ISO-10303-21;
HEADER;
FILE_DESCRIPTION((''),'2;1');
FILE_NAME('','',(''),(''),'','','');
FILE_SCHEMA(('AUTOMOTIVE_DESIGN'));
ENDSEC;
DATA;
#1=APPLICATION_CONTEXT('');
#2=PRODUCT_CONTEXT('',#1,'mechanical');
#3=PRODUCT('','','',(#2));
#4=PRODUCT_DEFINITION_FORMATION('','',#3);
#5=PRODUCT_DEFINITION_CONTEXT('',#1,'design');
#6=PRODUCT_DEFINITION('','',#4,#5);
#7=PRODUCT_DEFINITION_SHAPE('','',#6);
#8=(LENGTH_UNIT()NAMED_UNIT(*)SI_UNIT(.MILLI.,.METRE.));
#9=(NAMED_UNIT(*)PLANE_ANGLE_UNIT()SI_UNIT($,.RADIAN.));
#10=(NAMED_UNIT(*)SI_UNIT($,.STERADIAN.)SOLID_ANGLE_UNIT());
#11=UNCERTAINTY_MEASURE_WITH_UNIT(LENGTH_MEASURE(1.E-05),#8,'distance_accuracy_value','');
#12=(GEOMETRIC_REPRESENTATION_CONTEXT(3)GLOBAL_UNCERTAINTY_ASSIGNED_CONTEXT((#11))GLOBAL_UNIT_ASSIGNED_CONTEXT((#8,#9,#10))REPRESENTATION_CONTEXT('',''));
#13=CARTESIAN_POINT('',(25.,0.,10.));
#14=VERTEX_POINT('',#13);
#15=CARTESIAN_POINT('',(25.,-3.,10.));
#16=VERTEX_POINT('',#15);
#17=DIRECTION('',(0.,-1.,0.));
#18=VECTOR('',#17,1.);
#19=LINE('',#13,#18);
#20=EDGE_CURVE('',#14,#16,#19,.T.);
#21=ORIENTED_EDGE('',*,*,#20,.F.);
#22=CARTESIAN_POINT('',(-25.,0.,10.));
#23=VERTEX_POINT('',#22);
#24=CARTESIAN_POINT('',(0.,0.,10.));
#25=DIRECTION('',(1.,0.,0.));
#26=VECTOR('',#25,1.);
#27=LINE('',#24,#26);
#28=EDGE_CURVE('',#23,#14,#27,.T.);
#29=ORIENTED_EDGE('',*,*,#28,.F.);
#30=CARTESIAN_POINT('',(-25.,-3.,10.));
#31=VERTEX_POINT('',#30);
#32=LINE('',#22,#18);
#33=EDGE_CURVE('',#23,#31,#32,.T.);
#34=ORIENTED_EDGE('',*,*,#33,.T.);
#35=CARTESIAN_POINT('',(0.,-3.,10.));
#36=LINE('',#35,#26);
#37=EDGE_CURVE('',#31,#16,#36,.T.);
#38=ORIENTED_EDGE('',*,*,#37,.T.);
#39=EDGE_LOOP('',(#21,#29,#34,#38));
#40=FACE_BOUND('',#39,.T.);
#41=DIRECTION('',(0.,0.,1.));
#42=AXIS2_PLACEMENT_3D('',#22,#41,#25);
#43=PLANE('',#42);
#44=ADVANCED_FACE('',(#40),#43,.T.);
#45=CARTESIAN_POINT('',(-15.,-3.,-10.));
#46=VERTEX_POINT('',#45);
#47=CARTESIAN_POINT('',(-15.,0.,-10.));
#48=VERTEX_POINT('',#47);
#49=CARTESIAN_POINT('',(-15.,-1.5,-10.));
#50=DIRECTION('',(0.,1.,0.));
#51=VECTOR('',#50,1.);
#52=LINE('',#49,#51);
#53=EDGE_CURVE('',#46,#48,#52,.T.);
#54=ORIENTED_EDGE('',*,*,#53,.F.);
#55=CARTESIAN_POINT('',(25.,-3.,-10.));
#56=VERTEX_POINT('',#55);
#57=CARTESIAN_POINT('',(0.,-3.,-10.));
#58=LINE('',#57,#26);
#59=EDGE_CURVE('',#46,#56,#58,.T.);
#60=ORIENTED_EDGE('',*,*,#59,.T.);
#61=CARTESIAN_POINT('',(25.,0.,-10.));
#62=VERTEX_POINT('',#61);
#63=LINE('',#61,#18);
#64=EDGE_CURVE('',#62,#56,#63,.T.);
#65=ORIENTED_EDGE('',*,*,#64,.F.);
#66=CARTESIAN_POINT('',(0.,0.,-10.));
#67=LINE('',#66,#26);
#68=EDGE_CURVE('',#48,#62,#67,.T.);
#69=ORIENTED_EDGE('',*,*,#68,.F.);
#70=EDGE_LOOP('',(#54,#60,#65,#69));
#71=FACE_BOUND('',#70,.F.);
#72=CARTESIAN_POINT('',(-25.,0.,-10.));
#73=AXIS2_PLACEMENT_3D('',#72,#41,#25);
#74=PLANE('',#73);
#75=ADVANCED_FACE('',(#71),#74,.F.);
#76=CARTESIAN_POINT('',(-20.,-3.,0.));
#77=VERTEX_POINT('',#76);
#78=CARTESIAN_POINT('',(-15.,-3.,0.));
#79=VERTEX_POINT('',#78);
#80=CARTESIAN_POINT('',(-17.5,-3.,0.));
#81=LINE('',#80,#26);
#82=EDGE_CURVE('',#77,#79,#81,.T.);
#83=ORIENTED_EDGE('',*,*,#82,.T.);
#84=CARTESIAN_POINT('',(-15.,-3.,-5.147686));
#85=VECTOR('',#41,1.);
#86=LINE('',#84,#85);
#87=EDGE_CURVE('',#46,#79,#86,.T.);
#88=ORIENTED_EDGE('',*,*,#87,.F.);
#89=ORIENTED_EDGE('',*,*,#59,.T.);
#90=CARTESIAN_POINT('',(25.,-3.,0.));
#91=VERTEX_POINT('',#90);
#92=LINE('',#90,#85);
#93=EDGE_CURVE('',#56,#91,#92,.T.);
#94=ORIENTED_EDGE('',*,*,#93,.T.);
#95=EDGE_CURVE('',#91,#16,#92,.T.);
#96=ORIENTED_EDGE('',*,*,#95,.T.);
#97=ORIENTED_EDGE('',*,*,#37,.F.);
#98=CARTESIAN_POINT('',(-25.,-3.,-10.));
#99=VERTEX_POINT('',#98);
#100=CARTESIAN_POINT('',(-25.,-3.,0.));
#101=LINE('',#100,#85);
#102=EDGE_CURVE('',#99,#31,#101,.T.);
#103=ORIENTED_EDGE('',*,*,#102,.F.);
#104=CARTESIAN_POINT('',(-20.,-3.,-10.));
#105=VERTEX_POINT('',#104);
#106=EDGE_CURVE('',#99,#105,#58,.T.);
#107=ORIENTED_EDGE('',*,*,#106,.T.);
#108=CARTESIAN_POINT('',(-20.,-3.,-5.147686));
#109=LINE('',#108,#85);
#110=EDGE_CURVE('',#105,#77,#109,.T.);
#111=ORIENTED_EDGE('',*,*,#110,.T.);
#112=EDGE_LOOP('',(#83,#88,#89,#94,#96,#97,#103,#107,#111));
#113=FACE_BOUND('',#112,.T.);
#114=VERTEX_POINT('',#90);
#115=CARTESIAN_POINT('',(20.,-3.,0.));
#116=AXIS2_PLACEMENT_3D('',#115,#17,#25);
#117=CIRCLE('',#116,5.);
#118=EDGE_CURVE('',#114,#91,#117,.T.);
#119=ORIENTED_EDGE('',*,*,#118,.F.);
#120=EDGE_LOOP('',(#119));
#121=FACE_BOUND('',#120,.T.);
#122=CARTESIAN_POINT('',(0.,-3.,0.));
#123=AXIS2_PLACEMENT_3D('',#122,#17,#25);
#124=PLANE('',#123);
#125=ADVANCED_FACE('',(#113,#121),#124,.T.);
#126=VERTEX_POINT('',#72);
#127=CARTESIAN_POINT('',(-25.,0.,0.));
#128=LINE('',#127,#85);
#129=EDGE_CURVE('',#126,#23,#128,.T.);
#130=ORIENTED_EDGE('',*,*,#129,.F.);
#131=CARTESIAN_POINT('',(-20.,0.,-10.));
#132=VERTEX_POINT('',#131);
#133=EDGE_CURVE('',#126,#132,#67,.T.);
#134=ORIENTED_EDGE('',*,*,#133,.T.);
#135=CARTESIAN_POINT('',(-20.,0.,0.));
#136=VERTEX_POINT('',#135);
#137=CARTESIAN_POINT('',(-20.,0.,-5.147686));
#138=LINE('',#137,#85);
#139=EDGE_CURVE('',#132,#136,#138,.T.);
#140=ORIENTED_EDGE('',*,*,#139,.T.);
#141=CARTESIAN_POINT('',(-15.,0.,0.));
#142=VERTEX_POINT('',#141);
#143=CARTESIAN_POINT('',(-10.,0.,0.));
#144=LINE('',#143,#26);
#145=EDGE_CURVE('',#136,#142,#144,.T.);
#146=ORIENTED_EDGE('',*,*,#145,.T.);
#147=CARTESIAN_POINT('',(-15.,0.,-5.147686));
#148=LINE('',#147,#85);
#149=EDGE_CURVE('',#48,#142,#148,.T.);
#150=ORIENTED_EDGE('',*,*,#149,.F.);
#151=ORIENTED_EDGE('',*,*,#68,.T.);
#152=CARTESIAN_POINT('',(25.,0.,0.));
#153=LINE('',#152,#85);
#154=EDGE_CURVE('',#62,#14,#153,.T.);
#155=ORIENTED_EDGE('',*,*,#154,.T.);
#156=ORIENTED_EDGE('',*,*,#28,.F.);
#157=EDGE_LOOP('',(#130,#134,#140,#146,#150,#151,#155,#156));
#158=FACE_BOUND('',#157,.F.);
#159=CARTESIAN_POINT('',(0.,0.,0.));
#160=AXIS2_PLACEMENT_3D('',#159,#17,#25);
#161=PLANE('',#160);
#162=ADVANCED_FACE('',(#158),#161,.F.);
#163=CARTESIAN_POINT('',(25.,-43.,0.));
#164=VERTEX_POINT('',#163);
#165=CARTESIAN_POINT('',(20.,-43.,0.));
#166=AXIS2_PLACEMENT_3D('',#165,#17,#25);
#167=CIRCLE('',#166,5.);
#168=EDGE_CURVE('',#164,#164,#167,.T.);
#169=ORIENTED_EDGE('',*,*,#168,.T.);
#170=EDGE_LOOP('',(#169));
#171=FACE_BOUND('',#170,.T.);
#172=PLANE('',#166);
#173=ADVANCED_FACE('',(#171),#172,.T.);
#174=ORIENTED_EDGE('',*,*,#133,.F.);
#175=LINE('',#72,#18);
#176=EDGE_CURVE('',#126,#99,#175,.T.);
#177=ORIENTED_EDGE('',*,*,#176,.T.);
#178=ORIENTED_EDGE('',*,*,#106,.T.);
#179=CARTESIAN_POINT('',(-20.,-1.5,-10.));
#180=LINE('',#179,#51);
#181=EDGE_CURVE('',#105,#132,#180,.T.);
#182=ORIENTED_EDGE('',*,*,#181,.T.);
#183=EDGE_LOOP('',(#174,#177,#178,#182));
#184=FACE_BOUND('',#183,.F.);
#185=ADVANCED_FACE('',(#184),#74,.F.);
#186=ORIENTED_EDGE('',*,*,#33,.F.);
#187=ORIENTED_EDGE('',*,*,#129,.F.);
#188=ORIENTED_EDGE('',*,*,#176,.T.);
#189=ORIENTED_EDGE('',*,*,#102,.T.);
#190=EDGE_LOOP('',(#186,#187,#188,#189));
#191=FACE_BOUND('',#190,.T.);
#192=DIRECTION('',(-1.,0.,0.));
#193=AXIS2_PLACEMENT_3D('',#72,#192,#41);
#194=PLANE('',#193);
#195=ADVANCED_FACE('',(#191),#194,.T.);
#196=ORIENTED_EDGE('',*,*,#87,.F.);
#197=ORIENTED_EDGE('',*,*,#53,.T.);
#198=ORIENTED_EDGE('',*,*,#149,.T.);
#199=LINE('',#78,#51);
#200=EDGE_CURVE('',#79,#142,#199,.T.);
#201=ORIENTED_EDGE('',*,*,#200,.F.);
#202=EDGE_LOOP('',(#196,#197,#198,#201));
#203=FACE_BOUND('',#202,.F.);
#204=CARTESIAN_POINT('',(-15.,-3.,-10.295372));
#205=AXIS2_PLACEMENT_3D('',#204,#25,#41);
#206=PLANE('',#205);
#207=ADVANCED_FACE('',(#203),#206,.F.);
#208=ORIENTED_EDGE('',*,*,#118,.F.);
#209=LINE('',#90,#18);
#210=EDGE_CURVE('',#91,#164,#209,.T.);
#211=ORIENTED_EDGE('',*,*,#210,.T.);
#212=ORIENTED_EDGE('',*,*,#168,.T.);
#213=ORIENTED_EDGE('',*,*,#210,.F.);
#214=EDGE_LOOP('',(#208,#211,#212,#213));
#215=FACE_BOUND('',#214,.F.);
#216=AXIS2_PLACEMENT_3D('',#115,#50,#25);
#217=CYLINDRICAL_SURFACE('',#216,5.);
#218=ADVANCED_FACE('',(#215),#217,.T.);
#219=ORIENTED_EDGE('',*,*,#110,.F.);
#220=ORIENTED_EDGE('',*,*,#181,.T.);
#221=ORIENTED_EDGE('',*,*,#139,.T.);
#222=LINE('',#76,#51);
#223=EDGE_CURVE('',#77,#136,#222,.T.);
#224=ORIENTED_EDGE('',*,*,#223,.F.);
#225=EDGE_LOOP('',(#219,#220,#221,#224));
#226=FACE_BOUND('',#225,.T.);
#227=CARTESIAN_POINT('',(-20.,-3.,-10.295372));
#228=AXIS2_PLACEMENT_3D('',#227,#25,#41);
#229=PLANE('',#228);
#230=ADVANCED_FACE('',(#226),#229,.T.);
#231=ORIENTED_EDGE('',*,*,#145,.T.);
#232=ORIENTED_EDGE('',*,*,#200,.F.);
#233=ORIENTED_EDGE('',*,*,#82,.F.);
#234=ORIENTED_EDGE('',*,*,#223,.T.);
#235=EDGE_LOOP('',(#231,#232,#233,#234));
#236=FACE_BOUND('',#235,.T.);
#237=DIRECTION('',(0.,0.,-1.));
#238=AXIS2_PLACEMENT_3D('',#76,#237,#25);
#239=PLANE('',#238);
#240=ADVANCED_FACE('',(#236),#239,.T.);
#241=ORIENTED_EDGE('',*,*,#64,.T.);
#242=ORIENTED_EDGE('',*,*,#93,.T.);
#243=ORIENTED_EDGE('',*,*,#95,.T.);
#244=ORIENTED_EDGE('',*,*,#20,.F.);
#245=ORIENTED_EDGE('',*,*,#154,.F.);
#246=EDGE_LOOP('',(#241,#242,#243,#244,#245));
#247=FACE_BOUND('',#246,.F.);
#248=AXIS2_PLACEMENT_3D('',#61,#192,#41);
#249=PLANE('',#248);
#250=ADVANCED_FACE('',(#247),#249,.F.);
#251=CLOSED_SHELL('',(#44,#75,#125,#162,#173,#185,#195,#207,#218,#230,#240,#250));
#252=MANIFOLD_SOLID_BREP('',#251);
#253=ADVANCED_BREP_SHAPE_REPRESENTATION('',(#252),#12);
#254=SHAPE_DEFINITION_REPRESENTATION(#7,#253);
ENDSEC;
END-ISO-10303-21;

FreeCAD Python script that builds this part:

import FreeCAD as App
import Part
import Sketcher
Q = App.Units.Quantity


def add_polygon(sketch, points):
    """Adds a closed chain of lines whose ends are joined by coincident constraints."""
    first, n = sketch.GeometryCount, len(points)
    for a, b in zip(points, points[1:] + points[:1]):
        sketch.addGeometry(Part.LineSegment(App.Vector(*a, 0), App.Vector(*b, 0)), False)
    for i in range(n):
        sketch.addConstraint(Sketcher.Constraint("Coincident", first + i, 2, first + (i + 1) % n, 1))

doc = App.newDocument("Part")
body = doc.addObject("PartDesign::Body", "Body")

# Sketch on XZ plane
sketch1 = body.newObject("Sketcher::SketchObject", "Sketch")
sketch1.AttachmentSupport = (doc.getObject("XZ_Plane"), [""])
sketch1.MapMode = "FlatFace"
add_polygon(sketch1, [(-25, 10), (-25, -10), (25, -10), (25, 10)])  # lines 0-3
sketch1.addConstraint([
    Sketcher.Constraint("Vertical", 0),
    Sketcher.Constraint("Horizontal", 1),
    Sketcher.Constraint("Vertical", 2),
    Sketcher.Constraint("Horizontal", 3),
    Sketcher.Constraint("Symmetric", 0, 2, 2, 2, -1, 1),
    Sketcher.Constraint("DistanceX", 1, 1, 1, 2, Q("50 mm")),
    Sketcher.Constraint("DistanceY", 0, 2, 0, 1, Q("20 mm")),
])
pad1 = body.newObject("PartDesign::Pad", "Pad")
pad1.Profile = sketch1
pad1.Length = 3

# Sketch on XZ plane
sketch2 = body.newObject("Sketcher::SketchObject", "Sketch001")
sketch2.AttachmentSupport = (doc.getObject("XZ_Plane"), [""])
sketch2.MapMode = "FlatFace"
sketch2.AttachmentOffset = App.Placement(App.Vector(0, 0, 3), App.Rotation())
sketch2.addGeometry(Part.Circle(App.Vector(20, 0, 0), App.Vector(0, 0, 1), 5), False)
sketch2.addConstraint([
    Sketcher.Constraint("PointOnObject", 0, 3, -1),
    Sketcher.Constraint("Diameter", 0, Q("10 mm")),
    Sketcher.Constraint("DistanceX", -1, 1, 0, 3, Q("20 mm")),
])
pad2 = body.newObject("PartDesign::Pad", "Pad001")
pad2.Profile = sketch2
pad2.Length = 40

# Sketch on XZ plane
sketch3 = body.newObject("Sketcher::SketchObject", "Sketch002")
sketch3.AttachmentSupport = (doc.getObject("XZ_Plane"), [""])
sketch3.MapMode = "FlatFace"
sketch3.AttachmentOffset = App.Placement(App.Vector(0, 0, 3), App.Rotation())
add_polygon(sketch3, [(-20, 0), (-20, -10), (-15, -10), (-15, 0)])  # lines 0-3
sketch3.addConstraint([
    Sketcher.Constraint("Vertical", 0),
    Sketcher.Constraint("Horizontal", 1),
    Sketcher.Constraint("Vertical", 2),
    Sketcher.Constraint("Horizontal", 3),
    Sketcher.Constraint("PointOnObject", 2, 2, -1),
    Sketcher.Constraint("DistanceX", 1, 1, 1, 2, Q("5 mm")),
    Sketcher.Constraint("DistanceX", 0, 2, -1, 1, Q("20 mm")),
    Sketcher.Constraint("DistanceY", 0, 2, 0, 1, Q("10.295372 mm")),
])
pocket1 = body.newObject("PartDesign::Pocket", "Pocket")
pocket1.Profile = sketch3
pocket1.Type = "ThroughAll"

doc.recompute()
